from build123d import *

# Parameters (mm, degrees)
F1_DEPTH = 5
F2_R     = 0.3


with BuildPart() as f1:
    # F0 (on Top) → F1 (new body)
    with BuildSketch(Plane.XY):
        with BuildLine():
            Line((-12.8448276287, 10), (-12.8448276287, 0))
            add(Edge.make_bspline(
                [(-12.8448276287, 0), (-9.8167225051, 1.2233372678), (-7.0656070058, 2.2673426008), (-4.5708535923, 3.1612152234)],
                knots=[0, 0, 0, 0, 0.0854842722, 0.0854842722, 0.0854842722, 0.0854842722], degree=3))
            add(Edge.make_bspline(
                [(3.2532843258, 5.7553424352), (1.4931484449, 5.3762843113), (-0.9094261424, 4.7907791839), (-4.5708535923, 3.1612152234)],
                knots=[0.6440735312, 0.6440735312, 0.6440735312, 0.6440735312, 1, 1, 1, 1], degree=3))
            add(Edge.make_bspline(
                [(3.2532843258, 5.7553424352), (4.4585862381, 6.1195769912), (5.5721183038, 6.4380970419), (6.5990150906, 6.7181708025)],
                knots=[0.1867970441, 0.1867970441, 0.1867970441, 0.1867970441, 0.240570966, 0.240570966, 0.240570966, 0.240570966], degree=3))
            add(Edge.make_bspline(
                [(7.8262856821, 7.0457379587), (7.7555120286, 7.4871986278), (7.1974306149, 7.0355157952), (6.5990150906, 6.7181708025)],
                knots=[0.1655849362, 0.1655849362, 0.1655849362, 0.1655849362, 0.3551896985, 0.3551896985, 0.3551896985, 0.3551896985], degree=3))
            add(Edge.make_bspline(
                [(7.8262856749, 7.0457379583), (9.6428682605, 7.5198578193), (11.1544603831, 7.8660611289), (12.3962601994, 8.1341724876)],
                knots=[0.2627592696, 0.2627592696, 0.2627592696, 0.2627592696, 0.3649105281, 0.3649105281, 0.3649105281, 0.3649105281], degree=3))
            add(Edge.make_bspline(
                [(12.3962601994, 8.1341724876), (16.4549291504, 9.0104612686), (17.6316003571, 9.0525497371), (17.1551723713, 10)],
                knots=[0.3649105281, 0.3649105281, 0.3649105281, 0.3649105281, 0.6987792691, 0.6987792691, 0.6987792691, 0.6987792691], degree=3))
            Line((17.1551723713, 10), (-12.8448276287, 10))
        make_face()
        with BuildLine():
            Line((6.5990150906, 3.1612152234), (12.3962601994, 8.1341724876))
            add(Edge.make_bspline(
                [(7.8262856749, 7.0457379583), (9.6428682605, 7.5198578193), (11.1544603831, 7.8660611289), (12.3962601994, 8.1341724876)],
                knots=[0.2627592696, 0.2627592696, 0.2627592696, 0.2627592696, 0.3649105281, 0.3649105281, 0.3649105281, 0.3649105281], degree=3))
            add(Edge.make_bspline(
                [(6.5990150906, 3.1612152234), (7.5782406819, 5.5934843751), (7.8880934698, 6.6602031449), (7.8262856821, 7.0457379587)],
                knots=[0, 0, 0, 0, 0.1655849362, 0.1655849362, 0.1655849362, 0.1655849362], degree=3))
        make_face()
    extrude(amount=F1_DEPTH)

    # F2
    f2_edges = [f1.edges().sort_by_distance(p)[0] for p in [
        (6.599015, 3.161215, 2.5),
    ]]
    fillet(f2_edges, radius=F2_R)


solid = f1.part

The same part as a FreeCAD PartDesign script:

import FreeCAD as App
import Part
import Sketcher
from FreeCAD import Vector


def edges_at(feature, points):
    """Names of the edges that pass closest to the given points."""
    edges = feature.Shape.Edges
    near = lambda p: min(range(len(edges)), key=lambda i: edges[i].distToShape(Part.Vertex(*p))[0])
    return sorted({f"Edge{near(p) + 1}" for p in points})

doc = App.newDocument("Part")
body = doc.addObject("PartDesign::Body", "Body")

sketch1 = body.newObject("Sketcher::SketchObject", "Sketch")
sketch1.AttachmentSupport = (doc.getObject("XY_Plane"), [""])
sketch1.MapMode = "FlatFace"
sketch1.addGeometry([
    Part.LineSegment(Vector(-12.844828, 10, 0), Vector(-12.844828, 0, 0)),
    Part.BSplineCurve([Vector(-12.844828, 0, 0), Vector(-9.816723, 1.223337, 0), Vector(-7.065607, 2.267343, 0), Vector(-4.570854, 3.161215, 0)], [4, 4], [0, 0.085484272], False, 3, [1, 1, 1, 1], False),
    Part.BSplineCurve([Vector(3.253284, 5.755342, 0), Vector(1.493148, 5.376284, 0), Vector(-0.909426, 4.790779, 0), Vector(-4.570854, 3.161215, 0)], [4, 4], [0.644073531, 1], False, 3, [1, 1, 1, 1], False),
    Part.BSplineCurve([Vector(3.253284, 5.755342, 0), Vector(4.458586, 6.119577, 0), Vector(5.572118, 6.438097, 0), Vector(6.599015, 6.718171, 0)], [4, 4], [0.186797044, 0.240570966], False, 3, [1, 1, 1, 1], False),
    Part.BSplineCurve([Vector(7.826286, 7.045738, 0), Vector(7.755512, 7.487199, 0), Vector(7.197431, 7.035516, 0), Vector(6.599015, 6.718171, 0)], [4, 4], [0.165584936, 0.355189698], False, 3, [1, 1, 1, 1], False),
    Part.BSplineCurve([Vector(6.599015, 3.161215, 0), Vector(7.578241, 5.593484, 0), Vector(7.888093, 6.660203, 0), Vector(7.826286, 7.045738, 0)], [4, 4], [0, 0.165584936], False, 3, [1, 1, 1, 1], False),
    Part.LineSegment(Vector(6.599015, 3.161215, 0), Vector(12.39626, 8.134172, 0)),
    Part.BSplineCurve([Vector(12.39626, 8.134172, 0), Vector(16.454929, 9.010461, 0), Vector(17.6316, 9.05255, 0), Vector(17.155172, 10, 0)], [4, 4], [0.364910528, 0.698779269], False, 3, [1, 1, 1, 1], False),
    Part.LineSegment(Vector(17.155172, 10, 0), Vector(-12.844828, 10, 0)),
], False)
sketch1.addConstraint([
    Sketcher.Constraint("Block", 1),
    Sketcher.Constraint("Block", 2),
    Sketcher.Constraint("Block", 3),
    Sketcher.Constraint("Block", 4),
    Sketcher.Constraint("Block", 5),
    Sketcher.Constraint("Block", 7),
    Sketcher.Constraint("Coincident", 0, 2, 1, 1),
    Sketcher.Constraint("Coincident", 5, 1, 6, 1),
    Sketcher.Constraint("Coincident", 6, 2, 7, 1),
    Sketcher.Constraint("Coincident", 7, 2, 8, 1),
    Sketcher.Constraint("Coincident", 8, 2, 0, 1),
    Sketcher.Constraint("Vertical", 0),
    Sketcher.Constraint("Horizontal", 8),
])
pad1 = body.newObject("PartDesign::Pad", "Pad")
pad1.Profile = sketch1
pad1.Length = 5
doc.recompute()

fillet = body.newObject("PartDesign::Fillet", "Fillet")
fillet.Base = (pad1, edges_at(pad1, [(6.599, 3.161, 2.5)]))
fillet.Radius = 0.3

doc.recompute()
